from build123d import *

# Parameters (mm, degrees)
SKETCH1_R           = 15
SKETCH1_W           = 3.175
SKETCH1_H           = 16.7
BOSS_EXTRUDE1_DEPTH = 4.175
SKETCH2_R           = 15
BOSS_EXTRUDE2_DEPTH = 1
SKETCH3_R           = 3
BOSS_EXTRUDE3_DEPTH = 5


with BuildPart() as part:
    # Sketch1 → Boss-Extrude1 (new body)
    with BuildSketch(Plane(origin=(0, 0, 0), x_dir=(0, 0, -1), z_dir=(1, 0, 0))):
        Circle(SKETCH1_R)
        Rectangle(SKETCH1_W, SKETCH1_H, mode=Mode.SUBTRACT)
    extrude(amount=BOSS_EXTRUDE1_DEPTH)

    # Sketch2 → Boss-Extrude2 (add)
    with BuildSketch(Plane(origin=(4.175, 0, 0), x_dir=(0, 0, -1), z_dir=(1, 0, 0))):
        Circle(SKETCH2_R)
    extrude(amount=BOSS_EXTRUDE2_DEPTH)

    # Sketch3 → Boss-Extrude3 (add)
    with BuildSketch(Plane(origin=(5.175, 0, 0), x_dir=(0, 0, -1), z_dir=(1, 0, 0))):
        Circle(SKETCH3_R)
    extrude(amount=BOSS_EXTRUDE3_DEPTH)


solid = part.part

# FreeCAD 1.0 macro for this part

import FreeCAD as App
import Part
import Sketcher
from FreeCAD import Vector

doc = App.newDocument("Part")
params = doc.addObject("Spreadsheet::Sheet", "Params")
for row, (alias, value) in enumerate([
    ("sketch1_diameter", "30 mm"),
    ("sketch1_width", "16.7 mm"),
    ("pad1_length", "4.175 mm"),
    ("sketch2_diameter", "30 mm"),
    ("pad2_length", "1 mm"),
    ("sketch3_diameter", "6 mm"),
    ("pad3_length", "5 mm"),
], start=1):
    params.set(f"A{row}", alias)
    params.set(f"B{row}", "=" + value)
    params.setAlias(f"B{row}", alias)

body = doc.addObject("PartDesign::Body", "Body")

sketch1 = doc.addObject("Sketcher::SketchObject", "Sketch")
body.addObject(sketch1)
sketch1.AttachmentSupport = (doc.YZ_Plane, [""])
sketch1.MapMode = "FlatFace"
sketch1.addGeometry([
    Part.Circle(Vector(0, 0, 0), Vector(0, 0, 1), 15),
    Part.LineSegment(Vector(-8.35, -1.5875, 0), Vector(-8.35, 1.5875, 0)),
    Part.LineSegment(Vector(-8.35, 1.5875, 0), Vector(8.35, 1.5875, 0)),
    Part.LineSegment(Vector(8.35, 1.5875, 0), Vector(8.35, -1.5875, 0)),
    Part.LineSegment(Vector(8.35, -1.5875, 0), Vector(-8.35, -1.5875, 0)),
], False)
sketch1.addConstraint([
    Sketcher.Constraint("Coincident", 1, 2, 2, 1),
    Sketcher.Constraint("Coincident", 2, 2, 3, 1),
    Sketcher.Constraint("Coincident", 3, 2, 4, 1),
    Sketcher.Constraint("Coincident", 4, 2, 1, 1),
    Sketcher.Constraint("Vertical", 1),
    Sketcher.Constraint("Horizontal", 2),
    Sketcher.Constraint("Vertical", 3),
    Sketcher.Constraint("Horizontal", 4),
    Sketcher.Constraint("Coincident", 0, 3, -1, 1),
    Sketcher.Constraint("Symmetric", 1, 2, 3, 2, -1, 1),
    Sketcher.Constraint("Diameter", 0, 30.0),
    Sketcher.Constraint("DistanceX", 2, 1, 2, 2, 16.7),
    Sketcher.Constraint("DistanceY", 1, 1, 1, 2, 3.175),
])
sketch1.setExpression("Constraints[10]", "Params.sketch1_diameter")
sketch1.setExpression("Constraints[11]", "Params.sketch1_width")
pad1 = doc.addObject("PartDesign::Pad", "Pad")
body.addObject(pad1)
pad1.Profile = sketch1
pad1.setExpression("Length", "Params.pad1_length")

sketch2 = doc.addObject("Sketcher::SketchObject", "Sketch001")
body.addObject(sketch2)
sketch2.AttachmentSupport = (doc.YZ_Plane, [""])
sketch2.MapMode = "FlatFace"
sketch2.AttachmentOffset = App.Placement(Vector(0, 0, 4.175), App.Rotation())
sketch2.addGeometry(Part.Circle(Vector(0, 0, 0), Vector(0, 0, 1), 15), False)
sketch2.addConstraint([
    Sketcher.Constraint("Coincident", 0, 3, -1, 1),
    Sketcher.Constraint("Diameter", 0, 30.0),
])
sketch2.setExpression("Constraints[1]", "Params.sketch2_diameter")
pad2 = doc.addObject("PartDesign::Pad", "Pad001")
body.addObject(pad2)
pad2.Profile = sketch2
pad2.setExpression("Length", "Params.pad2_length")

sketch3 = doc.addObject("Sketcher::SketchObject", "Sketch002")
body.addObject(sketch3)
sketch3.AttachmentSupport = (doc.YZ_Plane, [""])
sketch3.MapMode = "FlatFace"
sketch3.AttachmentOffset = App.Placement(Vector(0, 0, 5.175), App.Rotation())
sketch3.addGeometry(Part.Circle(Vector(0, 0, 0), Vector(0, 0, 1), 3), False)
sketch3.addConstraint([
    Sketcher.Constraint("Coincident", 0, 3, -1, 1),
    Sketcher.Constraint("Diameter", 0, 6.0),
])
sketch3.setExpression("Constraints[1]", "Params.sketch3_diameter")
pad3 = doc.addObject("PartDesign::Pad", "Pad002")
body.addObject(pad3)
pad3.Profile = sketch3
pad3.setExpression("Length", "Params.pad3_length")

doc.recompute()
